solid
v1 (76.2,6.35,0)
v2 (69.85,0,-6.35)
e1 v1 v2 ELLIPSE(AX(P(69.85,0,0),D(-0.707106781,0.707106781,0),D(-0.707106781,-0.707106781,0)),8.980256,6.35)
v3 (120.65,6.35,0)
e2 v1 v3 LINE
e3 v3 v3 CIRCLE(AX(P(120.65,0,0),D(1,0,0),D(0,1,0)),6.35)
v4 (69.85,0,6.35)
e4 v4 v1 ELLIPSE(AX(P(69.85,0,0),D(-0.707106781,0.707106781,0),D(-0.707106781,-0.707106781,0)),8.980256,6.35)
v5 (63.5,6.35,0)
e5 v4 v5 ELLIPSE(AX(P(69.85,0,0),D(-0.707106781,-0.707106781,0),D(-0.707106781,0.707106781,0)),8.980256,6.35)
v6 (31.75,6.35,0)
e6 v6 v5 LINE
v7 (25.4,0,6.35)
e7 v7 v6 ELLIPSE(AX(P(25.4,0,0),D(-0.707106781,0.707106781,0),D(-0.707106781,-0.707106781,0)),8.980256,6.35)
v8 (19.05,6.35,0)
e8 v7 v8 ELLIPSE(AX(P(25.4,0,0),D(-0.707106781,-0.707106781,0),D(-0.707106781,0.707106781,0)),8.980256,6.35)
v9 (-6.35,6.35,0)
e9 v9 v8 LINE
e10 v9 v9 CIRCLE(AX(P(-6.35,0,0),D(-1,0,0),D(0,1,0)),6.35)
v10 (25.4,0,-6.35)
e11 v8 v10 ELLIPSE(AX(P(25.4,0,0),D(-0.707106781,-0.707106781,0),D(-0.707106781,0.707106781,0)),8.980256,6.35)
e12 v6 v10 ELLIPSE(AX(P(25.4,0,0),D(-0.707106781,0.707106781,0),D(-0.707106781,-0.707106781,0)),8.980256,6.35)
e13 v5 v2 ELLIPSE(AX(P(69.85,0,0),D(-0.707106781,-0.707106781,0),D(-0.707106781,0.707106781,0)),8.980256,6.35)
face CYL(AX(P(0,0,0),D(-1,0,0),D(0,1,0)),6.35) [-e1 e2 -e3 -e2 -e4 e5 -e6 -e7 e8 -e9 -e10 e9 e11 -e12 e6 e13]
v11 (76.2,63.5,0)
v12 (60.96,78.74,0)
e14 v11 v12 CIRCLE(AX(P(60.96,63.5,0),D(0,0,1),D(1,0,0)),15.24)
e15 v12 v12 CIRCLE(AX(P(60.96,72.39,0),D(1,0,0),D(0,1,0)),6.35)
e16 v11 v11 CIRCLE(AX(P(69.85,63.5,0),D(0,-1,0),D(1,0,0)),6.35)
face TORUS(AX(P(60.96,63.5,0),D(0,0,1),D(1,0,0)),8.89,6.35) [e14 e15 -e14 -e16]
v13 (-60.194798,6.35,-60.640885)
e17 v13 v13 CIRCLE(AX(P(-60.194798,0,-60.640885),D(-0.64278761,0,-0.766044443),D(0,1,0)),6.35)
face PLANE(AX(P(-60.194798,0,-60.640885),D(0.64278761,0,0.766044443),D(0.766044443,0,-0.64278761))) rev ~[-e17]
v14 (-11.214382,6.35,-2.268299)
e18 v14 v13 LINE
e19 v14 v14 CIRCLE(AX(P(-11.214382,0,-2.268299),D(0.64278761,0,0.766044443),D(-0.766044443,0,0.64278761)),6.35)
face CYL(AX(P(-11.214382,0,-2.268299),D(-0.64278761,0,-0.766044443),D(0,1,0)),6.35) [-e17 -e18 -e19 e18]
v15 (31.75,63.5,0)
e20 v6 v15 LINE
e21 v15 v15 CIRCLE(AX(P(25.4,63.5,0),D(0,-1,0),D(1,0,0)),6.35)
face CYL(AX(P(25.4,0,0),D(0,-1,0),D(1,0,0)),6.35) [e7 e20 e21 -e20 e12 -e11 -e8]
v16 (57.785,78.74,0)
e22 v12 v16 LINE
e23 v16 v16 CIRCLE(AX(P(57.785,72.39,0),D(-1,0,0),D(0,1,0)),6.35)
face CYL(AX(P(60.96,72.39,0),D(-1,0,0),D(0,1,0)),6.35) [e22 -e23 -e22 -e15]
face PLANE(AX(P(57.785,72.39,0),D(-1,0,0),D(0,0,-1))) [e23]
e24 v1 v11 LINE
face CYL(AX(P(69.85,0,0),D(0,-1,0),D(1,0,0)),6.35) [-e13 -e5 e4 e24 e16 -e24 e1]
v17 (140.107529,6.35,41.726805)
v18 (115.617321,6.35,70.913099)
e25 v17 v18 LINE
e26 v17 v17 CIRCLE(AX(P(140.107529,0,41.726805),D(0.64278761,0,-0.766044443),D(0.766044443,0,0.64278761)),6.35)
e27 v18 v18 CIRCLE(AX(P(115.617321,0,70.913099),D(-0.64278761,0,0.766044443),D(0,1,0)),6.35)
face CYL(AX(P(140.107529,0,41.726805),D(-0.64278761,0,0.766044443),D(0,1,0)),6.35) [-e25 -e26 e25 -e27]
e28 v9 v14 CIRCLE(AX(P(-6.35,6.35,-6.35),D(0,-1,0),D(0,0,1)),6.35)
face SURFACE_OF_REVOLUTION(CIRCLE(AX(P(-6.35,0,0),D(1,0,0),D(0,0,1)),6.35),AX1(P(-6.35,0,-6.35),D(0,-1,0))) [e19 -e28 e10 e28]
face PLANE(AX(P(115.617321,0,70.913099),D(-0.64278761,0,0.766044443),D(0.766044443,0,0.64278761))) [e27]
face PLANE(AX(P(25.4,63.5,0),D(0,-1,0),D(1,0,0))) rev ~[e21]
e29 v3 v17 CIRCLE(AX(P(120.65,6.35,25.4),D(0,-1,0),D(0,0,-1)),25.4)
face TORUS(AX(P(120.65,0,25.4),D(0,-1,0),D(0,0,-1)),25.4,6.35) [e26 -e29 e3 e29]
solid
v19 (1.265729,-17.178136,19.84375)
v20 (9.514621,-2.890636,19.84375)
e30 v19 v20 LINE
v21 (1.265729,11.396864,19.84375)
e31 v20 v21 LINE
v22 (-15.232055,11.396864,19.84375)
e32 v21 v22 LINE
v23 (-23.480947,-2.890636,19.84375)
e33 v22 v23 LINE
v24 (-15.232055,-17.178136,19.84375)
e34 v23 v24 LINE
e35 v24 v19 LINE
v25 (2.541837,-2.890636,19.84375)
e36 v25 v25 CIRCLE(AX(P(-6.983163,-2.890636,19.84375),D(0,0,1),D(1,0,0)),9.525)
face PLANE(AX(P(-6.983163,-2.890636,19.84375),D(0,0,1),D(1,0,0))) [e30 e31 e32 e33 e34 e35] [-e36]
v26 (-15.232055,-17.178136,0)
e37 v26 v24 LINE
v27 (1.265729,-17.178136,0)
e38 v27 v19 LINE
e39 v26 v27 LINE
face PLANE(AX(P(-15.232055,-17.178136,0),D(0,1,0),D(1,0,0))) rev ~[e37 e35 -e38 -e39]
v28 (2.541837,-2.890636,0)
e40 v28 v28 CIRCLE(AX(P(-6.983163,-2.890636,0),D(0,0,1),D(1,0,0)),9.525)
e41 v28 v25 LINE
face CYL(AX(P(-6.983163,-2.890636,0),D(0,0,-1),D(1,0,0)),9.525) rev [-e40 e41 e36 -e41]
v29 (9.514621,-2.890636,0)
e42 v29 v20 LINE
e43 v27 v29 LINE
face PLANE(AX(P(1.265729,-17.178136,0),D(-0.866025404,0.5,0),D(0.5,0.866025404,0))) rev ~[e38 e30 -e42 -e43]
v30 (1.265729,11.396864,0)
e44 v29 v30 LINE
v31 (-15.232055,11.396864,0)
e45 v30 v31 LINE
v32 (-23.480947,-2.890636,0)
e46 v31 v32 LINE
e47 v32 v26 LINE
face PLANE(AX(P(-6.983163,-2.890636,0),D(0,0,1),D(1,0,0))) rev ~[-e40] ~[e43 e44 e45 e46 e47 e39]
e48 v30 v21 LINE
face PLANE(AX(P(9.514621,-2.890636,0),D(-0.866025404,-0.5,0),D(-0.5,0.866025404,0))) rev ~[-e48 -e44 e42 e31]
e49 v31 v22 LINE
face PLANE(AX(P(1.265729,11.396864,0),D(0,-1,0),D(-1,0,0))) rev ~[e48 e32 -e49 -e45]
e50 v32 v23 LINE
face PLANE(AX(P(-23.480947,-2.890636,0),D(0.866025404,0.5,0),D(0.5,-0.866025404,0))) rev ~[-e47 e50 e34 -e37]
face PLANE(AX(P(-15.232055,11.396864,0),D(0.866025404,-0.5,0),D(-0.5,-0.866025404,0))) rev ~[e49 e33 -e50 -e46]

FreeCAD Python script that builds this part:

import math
import FreeCAD as App
import Part
import Sketcher
Q = App.Units.Quantity


def add_polygon(sketch, points):
    """Adds a closed chain of lines whose ends are joined by coincident constraints."""
    first, n = sketch.GeometryCount, len(points)
    for a, b in zip(points, points[1:] + points[:1]):
        sketch.addGeometry(Part.LineSegment(App.Vector(*a, 0), App.Vector(*b, 0)), False)
    for i in range(n):
        sketch.addConstraint(Sketcher.Constraint("Coincident", first + i, 2, first + (i + 1) % n, 1))

doc = App.newDocument("Part")
body = doc.addObject("PartDesign::Body", "Body")

# Sketch on YZ plane
sketch1 = doc.addObject("Sketcher::SketchObject", "Sketch")
body.addObject(sketch1)
sketch1.AttachmentSupport = (doc.YZ_Plane, [""])
sketch1.MapMode = "FlatFace"
sketch1.addGeometry(Part.Circle(App.Vector(0, 0, 0), App.Vector(0, 0, 1), 6.35), False)
sketch1.addConstraint([
    Sketcher.Constraint("Coincident", 0, 3, -1, 1),
    Sketcher.Constraint("Diameter", 0, Q("0.5 in")),
])

# Sketch on XZ plane
sketch2 = doc.addObject("Sketcher::SketchObject", "Sketch001")
body.addObject(sketch2)
sketch2.AttachmentSupport = (doc.XZ_Plane, [""])
sketch2.MapMode = "FlatFace"
sketch2.addGeometry([
    Part.LineSegment(App.Vector(0, 0, 0), App.Vector(120.65, 0, 0)),
    Part.ArcOfCircle(Part.Circle(App.Vector(120.65, 25.4, 0), App.Vector(0, 0, 1), 25.4), math.radians(-90), math.radians(40)),
    Part.LineSegment(App.Vector(140.107529, 41.726805, 0), App.Vector(115.617321, 70.913099, 0)),
], False)
sketch2.addConstraint([
    Sketcher.Constraint("Tangent", 0, 2, 1, 1),
    Sketcher.Constraint("Tangent", 1, 2, 2, 1),
    Sketcher.Constraint("Horizontal", 0),
    Sketcher.Constraint("Coincident", 0, 1, -1, 1),
    Sketcher.Constraint("Radius", 1, Q("1 in")),
    Sketcher.Constraint("Angle", 2, Q("130 deg")),
    Sketcher.Constraint("Distance", 2, Q("1.5 in")),
    Sketcher.Constraint("DistanceX", 0, 1, 0, 2, Q("4.75 in")),
])
doc.recompute()

additivepipe = doc.addObject("PartDesign::AdditivePipe", "AdditivePipe")
body.addObject(additivepipe)
additivepipe.Profile = sketch1
additivepipe.Spine = (sketch2, ["Edge1", "Edge2", "Edge3"])

# Sketch on YZ plane
sketch3 = doc.addObject("Sketcher::SketchObject", "Sketch002")
body.addObject(sketch3)
sketch3.AttachmentSupport = (doc.YZ_Plane, [""])
sketch3.MapMode = "FlatFace"
sketch3.addGeometry(Part.Circle(App.Vector(0, 0, 0), App.Vector(0, 0, 1), 6.35), False)
sketch3.addConstraint([
    Sketcher.Constraint("Coincident", 0, 3, -1, 1),
    Sketcher.Constraint("Diameter", 0, Q("0.5 in")),
])

# Sketch on XZ plane
sketch4 = doc.addObject("Sketcher::SketchObject", "Sketch003")
body.addObject(sketch4)
sketch4.AttachmentSupport = (doc.XZ_Plane, [""])
sketch4.MapMode = "FlatFace"
sketch4.addGeometry([
    Part.LineSegment(App.Vector(0, 0, 0), App.Vector(-6.35, 0, 0)),
    Part.ArcOfCircle(Part.Circle(App.Vector(-6.35, -6.35, 0), App.Vector(0, 0, 1), 6.35), math.radians(90), math.radians(140)),
    Part.LineSegment(App.Vector(-11.214382, -2.268299, 0), App.Vector(-60.194798, -60.640885, 0)),
], False)
sketch4.addConstraint([
    Sketcher.Constraint("Tangent", 0, 2, 1, 1),
    Sketcher.Constraint("Tangent", 1, 2, 2, 1),
    Sketcher.Constraint("Horizontal", 0),
    Sketcher.Constraint("Coincident", 0, 1, -1, 1),
    Sketcher.Constraint("Radius", 1, Q("0.25 in")),
    Sketcher.Constraint("Distance", 2, Q("3 in")),
    Sketcher.Constraint("Angle", 2, Q("-130 deg")),
    Sketcher.Constraint("DistanceX", 0, 2, 0, 1, Q("0.25 in")),
])
doc.recompute()

additivepipe2 = doc.addObject("PartDesign::AdditivePipe", "AdditivePipe001")
body.addObject(additivepipe2)
additivepipe2.Profile = sketch3
additivepipe2.Spine = (sketch4, ["Edge1", "Edge2", "Edge3"])

# Sketch on XZ plane
sketch5 = doc.addObject("Sketcher::SketchObject", "Sketch004")
body.addObject(sketch5)
sketch5.AttachmentSupport = (doc.XZ_Plane, [""])
sketch5.MapMode = "FlatFace"
sketch5.addGeometry([
    Part.Circle(App.Vector(25.4, 0, 0), App.Vector(0, 0, 1), 6.35),
    Part.Circle(App.Vector(69.85, 0, 0), App.Vector(0, 0, 1), 6.35),
], False)
sketch5.addConstraint([
    Sketcher.Constraint("Equal", 0, 1),
    Sketcher.Constraint("PointOnObject", 0, 3, -1),
    Sketcher.Constraint("PointOnObject", 1, 3, -1),
    Sketcher.Constraint("Diameter", 0, Q("0.5 in")),
    Sketcher.Constraint("DistanceX", -1, 1, 0, 3, Q("1 in")),
    Sketcher.Constraint("DistanceX", -1, 1, 1, 3, Q("2.75 in")),
])
pad1 = doc.addObject("PartDesign::Pad", "Pad")
body.addObject(pad1)
pad1.Profile = sketch5
pad1.Length = Q("2.5 in")
pad1.Reversed = True

# Sketch on XZ plane
sketch6 = doc.addObject("Sketcher::SketchObject", "Sketch005")
body.addObject(sketch6)
sketch6.AttachmentSupport = (doc.XZ_Plane, [""])
sketch6.MapMode = "FlatFace"
sketch6.AttachmentOffset = App.Placement(App.Vector(0, 0, -2.5 * 25.4), App.Rotation())
sketch6.addGeometry(Part.Circle(App.Vector(69.85, 0, 0), App.Vector(0, 0, 1), 6.35), False)
sketch6.addConstraint([
    Sketcher.Constraint("PointOnObject", 0, 3, -1),
    Sketcher.Constraint("Diameter", 0, Q("0.5 in")),
    Sketcher.Constraint("DistanceX", -1, 1, 0, 3, Q("2.75 in")),
])

# Sketch on XY plane
sketch7 = doc.addObject("Sketcher::SketchObject", "Sketch006")
body.addObject(sketch7)
sketch7.AttachmentSupport = (doc.XY_Plane, [""])
sketch7.MapMode = "FlatFace"
sketch7.addGeometry([
    Part.ArcOfCircle(Part.Circle(App.Vector(60.96, 63.5, 0), App.Vector(0, 0, 1), 8.89), math.radians(0), math.radians(90)),
    Part.LineSegment(App.Vector(60.96, 72.39, 0), App.Vector(57.785, 72.39, 0)),
], False)
sketch7.addConstraint([
    Sketcher.Constraint("Tangent", 0, 2, 1, 1),
    Sketcher.Constraint("Horizontal", 1),
    Sketcher.Constraint("Radius", 0, Q("0.35 in")),
    Sketcher.Constraint("DistanceX", -1, 1, 0, 3, Q("2.4 in")),
    Sketcher.Constraint("DistanceY", -1, 1, 0, 3, Q("2.5 in")),
    Sketcher.Constraint("DistanceY", -1, 1, 0, 1, Q("2.5 in")),
    Sketcher.Constraint("DistanceX", 1, 2, 1, 1, Q("0.125 in")),
])
doc.recompute()

additivepipe3 = doc.addObject("PartDesign::AdditivePipe", "AdditivePipe002")
body.addObject(additivepipe3)
additivepipe3.Profile = sketch6
additivepipe3.Spine = (sketch7, ["Edge1", "Edge2"])
body2 = doc.addObject("PartDesign::Body", "Body001")

# Sketch on XY plane
sketch8 = doc.addObject("Sketcher::SketchObject", "Sketch007")
body2.addObject(sketch8)
sketch8.AttachmentSupport = (doc.getObject("XY_Plane001"), [""])
sketch8.MapMode = "FlatFace"
add_polygon(sketch8, [(9.514621, -2.890636), (1.265729, 11.396864), (-15.232055, 11.396864), (-23.480947, -2.890636), (-15.232055, -17.178136), (1.265729, -17.178136)])  # lines 0-5
sketch8.addGeometry(Part.Circle(App.Vector(-6.983163, -2.890636, 0), App.Vector(0, 0, 1), 9.525), False)  # 6
sketch8.addConstraint([
    Sketcher.Constraint("Horizontal", 1),
    Sketcher.Constraint("Horizontal", 4),
    Sketcher.Constraint("Parallel", 0, 3),
    Sketcher.Constraint("Parallel", 2, 5),
    Sketcher.Constraint("Horizontal", 6, 3, 2, 2),
    Sketcher.Constraint("Horizontal", 2, 2, 5, 2),
    Sketcher.Constraint("Vertical", 1, 2, 3, 2),
    Sketcher.Constraint("Vertical", 0, 2, 4, 2),
    Sketcher.Constraint("Diameter", 6, Q("0.75 in")),
    Sketcher.Constraint("Angle", 0, Q("120 deg")),
    Sketcher.Constraint("DistanceY", 6, 3, 0, 2, Q("0.5625 in")),
    Sketcher.Constraint("DistanceX", 1, 2, 1, 1, Q("16.497784 mm")),
    Sketcher.Constraint("DistanceX", -1, 1, 0, 2, Q("1.265729 mm")),
    Sketcher.Constraint("DistanceX", 6, 3, 0, 2, Q("8.248892 mm")),
    Sketcher.Constraint("DistanceY", 6, 3, -1, 1, Q("2.890636 mm")),
])
pad2 = doc.addObject("PartDesign::Pad", "Pad001")
body2.addObject(pad2)
pad2.Profile = sketch8
pad2.Length = Q("0.78125 in")

doc.recompute()
